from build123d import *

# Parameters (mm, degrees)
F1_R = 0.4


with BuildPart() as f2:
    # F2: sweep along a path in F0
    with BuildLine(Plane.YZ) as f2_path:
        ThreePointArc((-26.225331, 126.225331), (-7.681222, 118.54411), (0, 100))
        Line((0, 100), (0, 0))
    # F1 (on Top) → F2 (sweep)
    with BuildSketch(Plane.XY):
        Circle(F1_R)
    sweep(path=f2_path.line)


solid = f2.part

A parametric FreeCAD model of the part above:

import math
import FreeCAD as App
import Part
import Sketcher

doc = App.newDocument("Part")
body = doc.addObject("PartDesign::Body", "Body")

sketch1 = body.newObject("Sketcher::SketchObject", "Sketch")
sketch1.AttachmentSupport = (doc.getObject("XY_Plane"), [""])
sketch1.MapMode = "FlatFace"
sketch1.addGeometry(Part.Circle(App.Vector(0, 0, 0), App.Vector(0, 0, 1), 0.4), False)
sketch1.addConstraint(Sketcher.Constraint("Coincident", 0, 3, -1, 1))
sketch1.addConstraint(Sketcher.Constraint("Diameter", 0, 0.8))

sketch2 = body.newObject("Sketcher::SketchObject", "Sketch001")
sketch2.AttachmentSupport = (doc.getObject("YZ_Plane"), [""])
sketch2.MapMode = "FlatFace"
sketch2.addGeometry(Part.ArcOfCircle(Part.Circle(App.Vector(-26.225331, 100, 0), App.Vector(0, 0, 1), 26.225331), math.radians(-0.000001), math.radians(90.000001)), False)
sketch2.addGeometry(Part.LineSegment(App.Vector(0, 100, 0), App.Vector(0, 0, 0)), False)
sketch2.addConstraint(Sketcher.Constraint("Tangent", 0, 1, 1, 1))
sketch2.addConstraint(Sketcher.Constraint("Vertical", 1))
sketch2.addConstraint(Sketcher.Constraint("Coincident", 1, 2, -1, 1))
sketch2.addConstraint(Sketcher.Constraint("DistanceY", 1, 2, 1, 1, 100.0))
sketch2.addConstraint(Sketcher.Constraint("Radius", 0, 26.225331))
sketch2.addConstraint(Sketcher.Constraint("DistanceX", 0, 2, -1, 1, 26.225331))
doc.recompute()

additivepipe = body.newObject("PartDesign::AdditivePipe", "AdditivePipe")
additivepipe.Profile = sketch1
additivepipe.Spine = (sketch2, ["Edge1", "Edge2"])

doc.recompute()
